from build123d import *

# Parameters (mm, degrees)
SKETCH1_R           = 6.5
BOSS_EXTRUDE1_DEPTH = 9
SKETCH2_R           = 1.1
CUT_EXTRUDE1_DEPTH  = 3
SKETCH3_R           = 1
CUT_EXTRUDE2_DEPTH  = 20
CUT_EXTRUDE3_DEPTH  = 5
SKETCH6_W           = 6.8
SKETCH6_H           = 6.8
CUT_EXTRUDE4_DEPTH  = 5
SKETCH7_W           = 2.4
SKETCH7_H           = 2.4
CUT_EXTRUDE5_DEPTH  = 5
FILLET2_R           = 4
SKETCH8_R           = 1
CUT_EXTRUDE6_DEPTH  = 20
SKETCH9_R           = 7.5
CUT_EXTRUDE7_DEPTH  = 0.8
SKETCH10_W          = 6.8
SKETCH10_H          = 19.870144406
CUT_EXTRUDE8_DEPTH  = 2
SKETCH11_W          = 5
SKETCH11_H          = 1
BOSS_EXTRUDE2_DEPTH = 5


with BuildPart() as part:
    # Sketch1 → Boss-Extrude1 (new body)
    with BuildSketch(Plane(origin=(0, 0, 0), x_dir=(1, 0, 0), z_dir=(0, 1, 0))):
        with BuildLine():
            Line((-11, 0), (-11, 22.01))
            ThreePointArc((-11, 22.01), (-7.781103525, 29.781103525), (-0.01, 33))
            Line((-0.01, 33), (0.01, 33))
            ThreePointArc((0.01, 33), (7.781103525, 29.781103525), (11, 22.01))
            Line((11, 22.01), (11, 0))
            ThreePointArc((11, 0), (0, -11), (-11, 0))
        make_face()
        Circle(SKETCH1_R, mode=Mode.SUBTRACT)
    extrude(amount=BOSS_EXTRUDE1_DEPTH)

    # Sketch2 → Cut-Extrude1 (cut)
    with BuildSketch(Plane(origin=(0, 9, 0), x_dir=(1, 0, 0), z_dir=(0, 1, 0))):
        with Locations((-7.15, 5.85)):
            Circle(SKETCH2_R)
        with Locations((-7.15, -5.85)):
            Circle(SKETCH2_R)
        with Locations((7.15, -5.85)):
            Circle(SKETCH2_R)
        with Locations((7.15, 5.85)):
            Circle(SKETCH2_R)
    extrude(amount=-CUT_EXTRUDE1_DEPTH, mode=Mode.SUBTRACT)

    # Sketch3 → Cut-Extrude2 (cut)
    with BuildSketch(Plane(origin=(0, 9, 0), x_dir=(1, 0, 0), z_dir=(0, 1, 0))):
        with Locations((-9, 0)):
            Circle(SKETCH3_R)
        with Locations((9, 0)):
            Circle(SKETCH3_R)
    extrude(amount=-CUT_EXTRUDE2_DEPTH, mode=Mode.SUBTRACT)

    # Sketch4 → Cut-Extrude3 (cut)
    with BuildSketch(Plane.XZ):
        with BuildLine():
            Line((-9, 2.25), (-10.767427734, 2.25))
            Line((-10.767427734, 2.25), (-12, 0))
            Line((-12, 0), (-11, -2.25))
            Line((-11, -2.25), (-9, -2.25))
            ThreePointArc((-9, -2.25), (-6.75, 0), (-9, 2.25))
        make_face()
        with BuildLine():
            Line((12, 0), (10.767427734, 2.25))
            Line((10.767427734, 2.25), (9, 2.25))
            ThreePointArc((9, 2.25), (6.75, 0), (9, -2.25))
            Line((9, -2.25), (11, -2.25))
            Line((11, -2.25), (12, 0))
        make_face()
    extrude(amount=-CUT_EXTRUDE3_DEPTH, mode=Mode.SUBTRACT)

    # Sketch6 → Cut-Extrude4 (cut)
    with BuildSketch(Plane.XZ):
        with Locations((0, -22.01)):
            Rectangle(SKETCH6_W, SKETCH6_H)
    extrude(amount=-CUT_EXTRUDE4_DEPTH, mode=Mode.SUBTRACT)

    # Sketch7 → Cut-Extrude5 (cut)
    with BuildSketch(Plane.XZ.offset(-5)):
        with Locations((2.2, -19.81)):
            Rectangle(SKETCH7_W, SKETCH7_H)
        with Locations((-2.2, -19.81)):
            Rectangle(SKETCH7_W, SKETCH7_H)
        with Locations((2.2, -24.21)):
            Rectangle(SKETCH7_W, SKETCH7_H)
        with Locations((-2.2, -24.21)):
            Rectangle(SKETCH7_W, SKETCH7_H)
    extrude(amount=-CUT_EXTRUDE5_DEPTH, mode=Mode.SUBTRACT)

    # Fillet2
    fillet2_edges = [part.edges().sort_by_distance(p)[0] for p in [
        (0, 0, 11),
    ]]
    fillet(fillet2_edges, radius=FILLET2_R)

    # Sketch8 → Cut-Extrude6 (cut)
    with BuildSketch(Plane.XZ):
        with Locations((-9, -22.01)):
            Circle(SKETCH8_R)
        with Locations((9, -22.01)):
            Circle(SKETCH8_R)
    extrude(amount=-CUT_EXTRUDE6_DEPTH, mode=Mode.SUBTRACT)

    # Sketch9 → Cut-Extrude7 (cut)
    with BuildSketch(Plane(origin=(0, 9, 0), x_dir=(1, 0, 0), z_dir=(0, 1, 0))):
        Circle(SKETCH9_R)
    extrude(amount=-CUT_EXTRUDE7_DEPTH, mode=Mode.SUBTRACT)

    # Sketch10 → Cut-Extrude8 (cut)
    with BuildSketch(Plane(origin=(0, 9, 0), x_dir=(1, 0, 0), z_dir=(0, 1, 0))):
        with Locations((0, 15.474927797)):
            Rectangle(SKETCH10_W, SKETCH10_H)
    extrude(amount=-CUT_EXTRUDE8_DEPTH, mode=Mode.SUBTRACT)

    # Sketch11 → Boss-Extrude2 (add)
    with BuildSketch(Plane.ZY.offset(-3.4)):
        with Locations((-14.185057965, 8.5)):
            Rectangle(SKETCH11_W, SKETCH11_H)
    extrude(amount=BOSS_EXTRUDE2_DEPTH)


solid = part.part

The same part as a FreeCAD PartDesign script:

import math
import FreeCAD as App
import Part
import Sketcher
from FreeCAD import Vector
Q = App.Units.Quantity


def edges_at(feature, points):
    """Names of the edges that pass closest to the given points."""
    edges = feature.Shape.Edges
    near = lambda p: min(range(len(edges)), key=lambda i: edges[i].distToShape(Part.Vertex(*p))[0])
    return sorted({f"Edge{near(p) + 1}" for p in points})

doc = App.newDocument("Part")
body = doc.addObject("PartDesign::Body", "Body")

# Sketch on XZ plane
sketch1 = body.newObject("Sketcher::SketchObject", "Sketch")
sketch1.AttachmentSupport = (doc.getObject("XZ_Plane"), [""])
sketch1.MapMode = "FlatFace"
sketch1.addGeometry([
    Part.LineSegment(Vector(-11, -22.01, 0), Vector(-11, 0, 0)),  # 0
    Part.ArcOfCircle(Part.Circle(Vector(0, 0, 0), Vector(0, 0, 1), 11), math.radians(0), math.radians(180)),  # 1
    Part.LineSegment(Vector(11, 0, 0), Vector(11, -22.01, 0)),  # 2
    Part.ArcOfCircle(Part.Circle(Vector(0.01, -22.01, 0), Vector(0, 0, 1), 10.99), math.radians(-90), math.radians(0)),  # 3
    Part.LineSegment(Vector(0.01, -33, 0), Vector(-0.01, -33, 0)),  # 4
    Part.ArcOfCircle(Part.Circle(Vector(-0.01, -22.01, 0), Vector(0, 0, 1), 10.99), math.radians(-180), math.radians(-90)),  # 5
    Part.Circle(Vector(0, 0, 0), Vector(0, 0, 1), 6.5),  # 6
], False)
sketch1.addConstraint([
    Sketcher.Constraint("Tangent", 0, 2, 1, 2),
    Sketcher.Constraint("Tangent", 1, 1, 2, 1),
    Sketcher.Constraint("Tangent", 2, 2, 3, 2),
    Sketcher.Constraint("Tangent", 3, 1, 4, 1),
    Sketcher.Constraint("Tangent", 4, 2, 5, 2),
    Sketcher.Constraint("Tangent", 5, 1, 0, 1),
    Sketcher.Constraint("Vertical", 0),
    Sketcher.Constraint("Vertical", 2),
    Sketcher.Constraint("Coincident", 1, 3, -1, 1),
    Sketcher.Constraint("Coincident", 6, 3, -1, 1),
    Sketcher.Constraint("Equal", 3, 5),
    Sketcher.Constraint("Vertical", 5, 3, 4, 2),
    Sketcher.Constraint("Diameter", 6, Q("13 mm")),
    Sketcher.Constraint("Radius", 1, Q("11 mm")),
    Sketcher.Constraint("Radius", 3, Q("10.99 mm")),
    Sketcher.Constraint("DistanceY", 3, 1, -1, 1, Q("33 mm")),
])
pad1 = body.newObject("PartDesign::Pad", "Pad")
pad1.Profile = sketch1
pad1.Length = 9
pad1.Reversed = True

# Sketch on XZ plane
sketch2 = body.newObject("Sketcher::SketchObject", "Sketch001")
sketch2.AttachmentSupport = (doc.getObject("XZ_Plane"), [""])
sketch2.MapMode = "FlatFace"
sketch2.AttachmentOffset = App.Placement(Vector(0, 0, -9), App.Rotation())
sketch2.addGeometry([
    Part.Circle(Vector(-7.15, -5.85, 0), Vector(0, 0, 1), 1.1),
    Part.Circle(Vector(-7.15, 5.85, 0), Vector(0, 0, 1), 1.1),
    Part.Circle(Vector(7.15, 5.85, 0), Vector(0, 0, 1), 1.1),
    Part.Circle(Vector(7.15, -5.85, 0), Vector(0, 0, 1), 1.1),
], False)
sketch2.addConstraint([
    Sketcher.Constraint("Equal", 0, 1),
    Sketcher.Constraint("Equal", 1, 2),
    Sketcher.Constraint("Equal", 2, 3),
    Sketcher.Constraint("Symmetric", 0, 3, 2, 3, -1, 1),
    Sketcher.Constraint("Symmetric", 1, 3, 3, 3, -1, 1),
    Sketcher.Constraint("Symmetric", 1, 3, 2, 3, -2),
    Sketcher.Constraint("Diameter", 0, Q("2.2 mm")),
    Sketcher.Constraint("DistanceY", 0, 3, 1, 3, Q("11.7 mm")),
    Sketcher.Constraint("DistanceX", 1, 3, 2, 3, Q("14.3 mm")),
])
pocket1 = body.newObject("PartDesign::Pocket", "Pocket")
pocket1.Profile = sketch2
pocket1.Length = 3
pocket1.Reversed = True

# Sketch on XZ plane
sketch3 = body.newObject("Sketcher::SketchObject", "Sketch002")
sketch3.AttachmentSupport = (doc.getObject("XZ_Plane"), [""])
sketch3.MapMode = "FlatFace"
sketch3.AttachmentOffset = App.Placement(Vector(0, 0, -9), App.Rotation())
sketch3.addGeometry([
    Part.Circle(Vector(-9, 0, 0), Vector(0, 0, 1), 1),
    Part.Circle(Vector(9, 0, 0), Vector(0, 0, 1), 1),
], False)
sketch3.addConstraint([
    Sketcher.Constraint("Equal", 0, 1),
    Sketcher.Constraint("Symmetric", 0, 3, 1, 3, -1, 1),
    Sketcher.Constraint("PointOnObject", 0, 3, -1),
    Sketcher.Constraint("Diameter", 0, Q("2 mm")),
    Sketcher.Constraint("DistanceX", 0, 3, -1, 1, Q("9 mm")),
])
pocket2 = body.newObject("PartDesign::Pocket", "Pocket001")
pocket2.Profile = sketch3
pocket2.Length = 20
pocket2.Reversed = True

# Sketch on XZ plane
sketch4 = body.newObject("Sketcher::SketchObject", "Sketch003")
sketch4.AttachmentSupport = (doc.getObject("XZ_Plane"), [""])
sketch4.MapMode = "FlatFace"
sketch4.addGeometry([
    Part.LineSegment(Vector(-9, 2.25, 0), Vector(-10.767428, 2.25, 0)),  # 0
    Part.LineSegment(Vector(-10.767428, 2.25, 0), Vector(-12, 0, 0)),  # 1
    Part.LineSegment(Vector(-12, 0, 0), Vector(-11, -2.25, 0)),  # 2
    Part.LineSegment(Vector(-11, -2.25, 0), Vector(-9, -2.25, 0)),  # 3
    Part.ArcOfCircle(Part.Circle(Vector(-9, 0, 0), Vector(0, 0, 1), 2.25), math.radians(-90), math.radians(90)),  # 4
    Part.LineSegment(Vector(12, 0, 0), Vector(10.767428, 2.25, 0)),  # 5
    Part.LineSegment(Vector(10.767428, 2.25, 0), Vector(9, 2.25, 0)),  # 6
    Part.ArcOfCircle(Part.Circle(Vector(9, 0, 0), Vector(0, 0, 1), 2.25), math.radians(90), math.radians(270)),  # 7
    Part.LineSegment(Vector(9, -2.25, 0), Vector(11, -2.25, 0)),  # 8
    Part.LineSegment(Vector(11, -2.25, 0), Vector(12, 0, 0)),  # 9
], False)
sketch4.addConstraint([
    Sketcher.Constraint("Coincident", 0, 2, 1, 1),
    Sketcher.Constraint("Coincident", 1, 2, 2, 1),
    Sketcher.Constraint("Coincident", 2, 2, 3, 1),
    Sketcher.Constraint("Tangent", 3, 2, 4, 1),
    Sketcher.Constraint("Tangent", 4, 2, 0, 1),
    Sketcher.Constraint("Coincident", 5, 2, 6, 1),
    Sketcher.Constraint("Tangent", 6, 2, 7, 1),
    Sketcher.Constraint("Tangent", 7, 2, 8, 1),
    Sketcher.Constraint("Coincident", 8, 2, 9, 1),
    Sketcher.Constraint("Coincident", 9, 2, 5, 1),
    Sketcher.Constraint("Horizontal", 0),
    Sketcher.Constraint("Horizontal", 3),
    Sketcher.Constraint("Horizontal", 6),
    Sketcher.Constraint("Horizontal", 8),
    Sketcher.Constraint("Equal", 4, 7),
    Sketcher.Constraint("Symmetric", 4, 3, 7, 3, -1, 1),
    Sketcher.Constraint("Symmetric", 1, 2, 9, 2, -1, 1),
    Sketcher.Constraint("Symmetric", 0, 2, 5, 2, -2),
    Sketcher.Constraint("PointOnObject", 1, 2, -1),
    Sketcher.Constraint("Equal", 3, 8),
    Sketcher.Constraint("DistanceX", 3, 1, 3, 2, Q("2 mm")),
    Sketcher.Constraint("Radius", 4, Q("2.25 mm")),
    Sketcher.Constraint("DistanceX", 4, 3, -1, 1, Q("9 mm")),
    Sketcher.Constraint("DistanceX", 1, 2, -1, 1, Q("12 mm")),
    Sketcher.Constraint("Distance", 1, Q("2.565489 mm")),
])
pocket3 = body.newObject("PartDesign::Pocket", "Pocket002")
pocket3.Profile = sketch4
pocket3.Length = 5

# Sketch on XZ plane
sketch5 = body.newObject("Sketcher::SketchObject", "Sketch004")
sketch5.AttachmentSupport = (doc.getObject("XZ_Plane"), [""])
sketch5.MapMode = "FlatFace"
sketch5.addGeometry([
    Part.LineSegment(Vector(-3.4, -18.61, 0), Vector(-3.4, -25.41, 0)),
    Part.LineSegment(Vector(-3.4, -25.41, 0), Vector(3.4, -25.41, 0)),
    Part.LineSegment(Vector(3.4, -25.41, 0), Vector(3.4, -18.61, 0)),
    Part.LineSegment(Vector(3.4, -18.61, 0), Vector(-3.4, -18.61, 0)),
], False)
sketch5.addConstraint([
    Sketcher.Constraint("Coincident", 0, 2, 1, 1),
    Sketcher.Constraint("Coincident", 1, 2, 2, 1),
    Sketcher.Constraint("Coincident", 2, 2, 3, 1),
    Sketcher.Constraint("Coincident", 3, 2, 0, 1),
    Sketcher.Constraint("Vertical", 0),
    Sketcher.Constraint("Horizontal", 1),
    Sketcher.Constraint("Vertical", 2),
    Sketcher.Constraint("Horizontal", 3),
    Sketcher.Constraint("Equal", 3, 0),
    Sketcher.Constraint("DistanceX", 1, 1, 1, 2, Q("6.8 mm")),
    Sketcher.Constraint("DistanceX", 0, 2, -1, 1, Q("3.4 mm")),
    Sketcher.Constraint("DistanceY", 0, 2, -1, 1, Q("25.41 mm")),
])
pocket4 = body.newObject("PartDesign::Pocket", "Pocket003")
pocket4.Profile = sketch5
pocket4.Length = 5

# Sketch on XZ plane
sketch6 = body.newObject("Sketcher::SketchObject", "Sketch005")
sketch6.AttachmentSupport = (doc.getObject("XZ_Plane"), [""])
sketch6.MapMode = "FlatFace"
sketch6.AttachmentOffset = App.Placement(Vector(0, 0, -5), App.Rotation())
sketch6.addGeometry([
    Part.LineSegment(Vector(1, -18.61, 0), Vector(1, -21.01, 0)),  # 0
    Part.LineSegment(Vector(1, -21.01, 0), Vector(3.4, -21.01, 0)),  # 1
    Part.LineSegment(Vector(3.4, -21.01, 0), Vector(3.4, -18.61, 0)),  # 2
    Part.LineSegment(Vector(3.4, -18.61, 0), Vector(1, -18.61, 0)),  # 3
    Part.LineSegment(Vector(-3.4, -18.61, 0), Vector(-3.4, -21.01, 0)),  # 4
    Part.LineSegment(Vector(-3.4, -21.01, 0), Vector(-1, -21.01, 0)),  # 5
    Part.LineSegment(Vector(-1, -21.01, 0), Vector(-1, -18.61, 0)),  # 6
    Part.LineSegment(Vector(-1, -18.61, 0), Vector(-3.4, -18.61, 0)),  # 7
    Part.LineSegment(Vector(1, -23.01, 0), Vector(1, -25.41, 0)),  # 8
    Part.LineSegment(Vector(1, -25.41, 0), Vector(3.4, -25.41, 0)),  # 9
    Part.LineSegment(Vector(3.4, -25.41, 0), Vector(3.4, -23.01, 0)),  # 10
    Part.LineSegment(Vector(3.4, -23.01, 0), Vector(1, -23.01, 0)),  # 11
    Part.LineSegment(Vector(-3.4, -23.01, 0), Vector(-3.4, -25.41, 0)),  # 12
    Part.LineSegment(Vector(-3.4, -25.41, 0), Vector(-1, -25.41, 0)),  # 13
    Part.LineSegment(Vector(-1, -25.41, 0), Vector(-1, -23.01, 0)),  # 14
    Part.LineSegment(Vector(-1, -23.01, 0), Vector(-3.4, -23.01, 0)),  # 15
], False)
sketch6.addConstraint([
    Sketcher.Constraint("Coincident", 0, 2, 1, 1),
    Sketcher.Constraint("Coincident", 1, 2, 2, 1),
    Sketcher.Constraint("Coincident", 2, 2, 3, 1),
    Sketcher.Constraint("Coincident", 3, 2, 0, 1),
    Sketcher.Constraint("Coincident", 4, 2, 5, 1),
    Sketcher.Constraint("Coincident", 5, 2, 6, 1),
    Sketcher.Constraint("Coincident", 6, 2, 7, 1),
    Sketcher.Constraint("Coincident", 7, 2, 4, 1),
    Sketcher.Constraint("Coincident", 8, 2, 9, 1),
    Sketcher.Constraint("Coincident", 9, 2, 10, 1),
    Sketcher.Constraint("Coincident", 10, 2, 11, 1),
    Sketcher.Constraint("Coincident", 11, 2, 8, 1),
    Sketcher.Constraint("Coincident", 12, 2, 13, 1),
    Sketcher.Constraint("Coincident", 13, 2, 14, 1),
    Sketcher.Constraint("Coincident", 14, 2, 15, 1),
    Sketcher.Constraint("Coincident", 15, 2, 12, 1),
    Sketcher.Constraint("Vertical", 0),
    Sketcher.Constraint("Horizontal", 1),
    Sketcher.Constraint("Vertical", 2),
    Sketcher.Constraint("Horizontal", 3),
    Sketcher.Constraint("Vertical", 4),
    Sketcher.Constraint("Horizontal", 5),
    Sketcher.Constraint("Vertical", 6),
    Sketcher.Constraint("Horizontal", 7),
    Sketcher.Constraint("Vertical", 8),
    Sketcher.Constraint("Horizontal", 9),
    Sketcher.Constraint("Vertical", 10),
    Sketcher.Constraint("Horizontal", 11),
    Sketcher.Constraint("Vertical", 12),
    Sketcher.Constraint("Horizontal", 13),
    Sketcher.Constraint("Vertical", 14),
    Sketcher.Constraint("Horizontal", 15),
    Sketcher.Constraint("Symmetric", 1, 2, 4, 2, -2),
    Sketcher.Constraint("Symmetric", 3, 2, 6, 2, -2),
    Sketcher.Constraint("Symmetric", 9, 2, 12, 2, -2),
    Sketcher.Constraint("Symmetric", 11, 2, 14, 2, -2),
    Sketcher.Constraint("Vertical", 3, 2, 8, 2),
    Sketcher.Constraint("Vertical", 2, 2, 9, 2),
    Sketcher.Constraint("Equal", 15, 0),
    Sketcher.Constraint("Equal", 6, 8),
    Sketcher.Constraint("DistanceX", 1, 1, 1, 2, Q("2.4 mm")),
    Sketcher.Constraint("DistanceX", -1, 1, 0, 2, Q("1 mm")),
    Sketcher.Constraint("DistanceY", 10, 2, 1, 2, Q("2 mm")),
    Sketcher.Constraint("DistanceY", 0, 2, -1, 1, Q("21.01 mm")),
])
pocket5 = body.newObject("PartDesign::Pocket", "Pocket004")
pocket5.Profile = sketch6
pocket5.Length = 5
doc.recompute()

fillet = body.newObject("PartDesign::Fillet", "Fillet")
fillet.Base = (pocket5, edges_at(pocket5, [(0, 0, 11)]))
fillet.Radius = 4

# Sketch on XZ plane
sketch7 = body.newObject("Sketcher::SketchObject", "Sketch006")
sketch7.AttachmentSupport = (doc.getObject("XZ_Plane"), [""])
sketch7.MapMode = "FlatFace"
sketch7.addGeometry([
    Part.Circle(Vector(-9, -22.01, 0), Vector(0, 0, 1), 1),
    Part.Circle(Vector(9, -22.01, 0), Vector(0, 0, 1), 1),
], False)
sketch7.addConstraint([
    Sketcher.Constraint("Equal", 0, 1),
    Sketcher.Constraint("Symmetric", 0, 3, 1, 3, -2),
    Sketcher.Constraint("Diameter", 0, Q("2 mm")),
    Sketcher.Constraint("DistanceX", 0, 3, -1, 1, Q("9 mm")),
    Sketcher.Constraint("DistanceY", 0, 3, -1, 1, Q("22.01 mm")),
])
pocket6 = body.newObject("PartDesign::Pocket", "Pocket005")
pocket6.Profile = sketch7
pocket6.Length = 20

# Sketch on XZ plane
sketch8 = body.newObject("Sketcher::SketchObject", "Sketch007")
sketch8.AttachmentSupport = (doc.getObject("XZ_Plane"), [""])
sketch8.MapMode = "FlatFace"
sketch8.AttachmentOffset = App.Placement(Vector(0, 0, -9), App.Rotation())
sketch8.addGeometry(Part.Circle(Vector(0, 0, 0), Vector(0, 0, 1), 7.5), False)
sketch8.addConstraint([
    Sketcher.Constraint("Coincident", 0, 3, -1, 1),
    Sketcher.Constraint("Diameter", 0, Q("15 mm")),
])
pocket7 = body.newObject("PartDesign::Pocket", "Pocket006")
pocket7.Profile = sketch8
pocket7.Length = 0.8
pocket7.Reversed = True

# Sketch on XZ plane
sketch9 = body.newObject("Sketcher::SketchObject", "Sketch008")
sketch9.AttachmentSupport = (doc.getObject("XZ_Plane"), [""])
sketch9.MapMode = "FlatFace"
sketch9.AttachmentOffset = App.Placement(Vector(0, 0, -9), App.Rotation())
sketch9.addGeometry([
    Part.LineSegment(Vector(-3.4, -25.41, 0), Vector(-3.4, -5.539856, 0)),
    Part.LineSegment(Vector(-3.4, -5.539856, 0), Vector(3.4, -5.539856, 0)),
    Part.LineSegment(Vector(3.4, -5.539856, 0), Vector(3.4, -25.41, 0)),
    Part.LineSegment(Vector(3.4, -25.41, 0), Vector(-3.4, -25.41, 0)),
], False)
sketch9.addConstraint([
    Sketcher.Constraint("Coincident", 0, 2, 1, 1),
    Sketcher.Constraint("Coincident", 1, 2, 2, 1),
    Sketcher.Constraint("Coincident", 2, 2, 3, 1),
    Sketcher.Constraint("Coincident", 3, 2, 0, 1),
    Sketcher.Constraint("Vertical", 0),
    Sketcher.Constraint("Horizontal", 1),
    Sketcher.Constraint("Vertical", 2),
    Sketcher.Constraint("Horizontal", 3),
    Sketcher.Constraint("DistanceX", 1, 1, 1, 2, Q("6.8 mm")),
    Sketcher.Constraint("DistanceX", 0, 2, -1, 1, Q("3.4 mm")),
    Sketcher.Constraint("DistanceY", 2, 2, -1, 1, Q("25.41 mm")),
    Sketcher.Constraint("DistanceY", 0, 1, 0, 2, Q("19.870144 mm")),
])
pocket8 = body.newObject("PartDesign::Pocket", "Pocket007")
pocket8.Profile = sketch9
pocket8.Length = 2
pocket8.Reversed = True

# Sketch on YZ plane
sketch10 = body.newObject("Sketcher::SketchObject", "Sketch009")
sketch10.AttachmentSupport = (doc.getObject("YZ_Plane"), [""])
sketch10.MapMode = "FlatFace"
sketch10.AttachmentOffset = App.Placement(Vector(0, 0, 3.4), App.Rotation())
sketch10.addGeometry([
    Part.LineSegment(Vector(9, -16.685058, 0), Vector(8, -16.685058, 0)),
    Part.LineSegment(Vector(8, -16.685058, 0), Vector(8, -11.685058, 0)),
    Part.LineSegment(Vector(8, -11.685058, 0), Vector(9, -11.685058, 0)),
    Part.LineSegment(Vector(9, -11.685058, 0), Vector(9, -16.685058, 0)),
], False)
sketch10.addConstraint([
    Sketcher.Constraint("Coincident", 0, 2, 1, 1),
    Sketcher.Constraint("Coincident", 1, 2, 2, 1),
    Sketcher.Constraint("Coincident", 2, 2, 3, 1),
    Sketcher.Constraint("Coincident", 3, 2, 0, 1),
    Sketcher.Constraint("Horizontal", 0),
    Sketcher.Constraint("Vertical", 1),
    Sketcher.Constraint("Horizontal", 2),
    Sketcher.Constraint("Vertical", 3),
    Sketcher.Constraint("DistanceX", 0, 2, 0, 1, Q("1 mm")),
    Sketcher.Constraint("DistanceY", 1, 1, 1, 2, Q("5 mm")),
    Sketcher.Constraint("DistanceX", -1, 1, 0, 2, Q("8 mm")),
    Sketcher.Constraint("DistanceY", 0, 2, -1, 1, Q("16.685058 mm")),
])
pad2 = body.newObject("PartDesign::Pad", "Pad001")
pad2.Profile = sketch10
pad2.Length = 5
pad2.Reversed = True

doc.recompute()
